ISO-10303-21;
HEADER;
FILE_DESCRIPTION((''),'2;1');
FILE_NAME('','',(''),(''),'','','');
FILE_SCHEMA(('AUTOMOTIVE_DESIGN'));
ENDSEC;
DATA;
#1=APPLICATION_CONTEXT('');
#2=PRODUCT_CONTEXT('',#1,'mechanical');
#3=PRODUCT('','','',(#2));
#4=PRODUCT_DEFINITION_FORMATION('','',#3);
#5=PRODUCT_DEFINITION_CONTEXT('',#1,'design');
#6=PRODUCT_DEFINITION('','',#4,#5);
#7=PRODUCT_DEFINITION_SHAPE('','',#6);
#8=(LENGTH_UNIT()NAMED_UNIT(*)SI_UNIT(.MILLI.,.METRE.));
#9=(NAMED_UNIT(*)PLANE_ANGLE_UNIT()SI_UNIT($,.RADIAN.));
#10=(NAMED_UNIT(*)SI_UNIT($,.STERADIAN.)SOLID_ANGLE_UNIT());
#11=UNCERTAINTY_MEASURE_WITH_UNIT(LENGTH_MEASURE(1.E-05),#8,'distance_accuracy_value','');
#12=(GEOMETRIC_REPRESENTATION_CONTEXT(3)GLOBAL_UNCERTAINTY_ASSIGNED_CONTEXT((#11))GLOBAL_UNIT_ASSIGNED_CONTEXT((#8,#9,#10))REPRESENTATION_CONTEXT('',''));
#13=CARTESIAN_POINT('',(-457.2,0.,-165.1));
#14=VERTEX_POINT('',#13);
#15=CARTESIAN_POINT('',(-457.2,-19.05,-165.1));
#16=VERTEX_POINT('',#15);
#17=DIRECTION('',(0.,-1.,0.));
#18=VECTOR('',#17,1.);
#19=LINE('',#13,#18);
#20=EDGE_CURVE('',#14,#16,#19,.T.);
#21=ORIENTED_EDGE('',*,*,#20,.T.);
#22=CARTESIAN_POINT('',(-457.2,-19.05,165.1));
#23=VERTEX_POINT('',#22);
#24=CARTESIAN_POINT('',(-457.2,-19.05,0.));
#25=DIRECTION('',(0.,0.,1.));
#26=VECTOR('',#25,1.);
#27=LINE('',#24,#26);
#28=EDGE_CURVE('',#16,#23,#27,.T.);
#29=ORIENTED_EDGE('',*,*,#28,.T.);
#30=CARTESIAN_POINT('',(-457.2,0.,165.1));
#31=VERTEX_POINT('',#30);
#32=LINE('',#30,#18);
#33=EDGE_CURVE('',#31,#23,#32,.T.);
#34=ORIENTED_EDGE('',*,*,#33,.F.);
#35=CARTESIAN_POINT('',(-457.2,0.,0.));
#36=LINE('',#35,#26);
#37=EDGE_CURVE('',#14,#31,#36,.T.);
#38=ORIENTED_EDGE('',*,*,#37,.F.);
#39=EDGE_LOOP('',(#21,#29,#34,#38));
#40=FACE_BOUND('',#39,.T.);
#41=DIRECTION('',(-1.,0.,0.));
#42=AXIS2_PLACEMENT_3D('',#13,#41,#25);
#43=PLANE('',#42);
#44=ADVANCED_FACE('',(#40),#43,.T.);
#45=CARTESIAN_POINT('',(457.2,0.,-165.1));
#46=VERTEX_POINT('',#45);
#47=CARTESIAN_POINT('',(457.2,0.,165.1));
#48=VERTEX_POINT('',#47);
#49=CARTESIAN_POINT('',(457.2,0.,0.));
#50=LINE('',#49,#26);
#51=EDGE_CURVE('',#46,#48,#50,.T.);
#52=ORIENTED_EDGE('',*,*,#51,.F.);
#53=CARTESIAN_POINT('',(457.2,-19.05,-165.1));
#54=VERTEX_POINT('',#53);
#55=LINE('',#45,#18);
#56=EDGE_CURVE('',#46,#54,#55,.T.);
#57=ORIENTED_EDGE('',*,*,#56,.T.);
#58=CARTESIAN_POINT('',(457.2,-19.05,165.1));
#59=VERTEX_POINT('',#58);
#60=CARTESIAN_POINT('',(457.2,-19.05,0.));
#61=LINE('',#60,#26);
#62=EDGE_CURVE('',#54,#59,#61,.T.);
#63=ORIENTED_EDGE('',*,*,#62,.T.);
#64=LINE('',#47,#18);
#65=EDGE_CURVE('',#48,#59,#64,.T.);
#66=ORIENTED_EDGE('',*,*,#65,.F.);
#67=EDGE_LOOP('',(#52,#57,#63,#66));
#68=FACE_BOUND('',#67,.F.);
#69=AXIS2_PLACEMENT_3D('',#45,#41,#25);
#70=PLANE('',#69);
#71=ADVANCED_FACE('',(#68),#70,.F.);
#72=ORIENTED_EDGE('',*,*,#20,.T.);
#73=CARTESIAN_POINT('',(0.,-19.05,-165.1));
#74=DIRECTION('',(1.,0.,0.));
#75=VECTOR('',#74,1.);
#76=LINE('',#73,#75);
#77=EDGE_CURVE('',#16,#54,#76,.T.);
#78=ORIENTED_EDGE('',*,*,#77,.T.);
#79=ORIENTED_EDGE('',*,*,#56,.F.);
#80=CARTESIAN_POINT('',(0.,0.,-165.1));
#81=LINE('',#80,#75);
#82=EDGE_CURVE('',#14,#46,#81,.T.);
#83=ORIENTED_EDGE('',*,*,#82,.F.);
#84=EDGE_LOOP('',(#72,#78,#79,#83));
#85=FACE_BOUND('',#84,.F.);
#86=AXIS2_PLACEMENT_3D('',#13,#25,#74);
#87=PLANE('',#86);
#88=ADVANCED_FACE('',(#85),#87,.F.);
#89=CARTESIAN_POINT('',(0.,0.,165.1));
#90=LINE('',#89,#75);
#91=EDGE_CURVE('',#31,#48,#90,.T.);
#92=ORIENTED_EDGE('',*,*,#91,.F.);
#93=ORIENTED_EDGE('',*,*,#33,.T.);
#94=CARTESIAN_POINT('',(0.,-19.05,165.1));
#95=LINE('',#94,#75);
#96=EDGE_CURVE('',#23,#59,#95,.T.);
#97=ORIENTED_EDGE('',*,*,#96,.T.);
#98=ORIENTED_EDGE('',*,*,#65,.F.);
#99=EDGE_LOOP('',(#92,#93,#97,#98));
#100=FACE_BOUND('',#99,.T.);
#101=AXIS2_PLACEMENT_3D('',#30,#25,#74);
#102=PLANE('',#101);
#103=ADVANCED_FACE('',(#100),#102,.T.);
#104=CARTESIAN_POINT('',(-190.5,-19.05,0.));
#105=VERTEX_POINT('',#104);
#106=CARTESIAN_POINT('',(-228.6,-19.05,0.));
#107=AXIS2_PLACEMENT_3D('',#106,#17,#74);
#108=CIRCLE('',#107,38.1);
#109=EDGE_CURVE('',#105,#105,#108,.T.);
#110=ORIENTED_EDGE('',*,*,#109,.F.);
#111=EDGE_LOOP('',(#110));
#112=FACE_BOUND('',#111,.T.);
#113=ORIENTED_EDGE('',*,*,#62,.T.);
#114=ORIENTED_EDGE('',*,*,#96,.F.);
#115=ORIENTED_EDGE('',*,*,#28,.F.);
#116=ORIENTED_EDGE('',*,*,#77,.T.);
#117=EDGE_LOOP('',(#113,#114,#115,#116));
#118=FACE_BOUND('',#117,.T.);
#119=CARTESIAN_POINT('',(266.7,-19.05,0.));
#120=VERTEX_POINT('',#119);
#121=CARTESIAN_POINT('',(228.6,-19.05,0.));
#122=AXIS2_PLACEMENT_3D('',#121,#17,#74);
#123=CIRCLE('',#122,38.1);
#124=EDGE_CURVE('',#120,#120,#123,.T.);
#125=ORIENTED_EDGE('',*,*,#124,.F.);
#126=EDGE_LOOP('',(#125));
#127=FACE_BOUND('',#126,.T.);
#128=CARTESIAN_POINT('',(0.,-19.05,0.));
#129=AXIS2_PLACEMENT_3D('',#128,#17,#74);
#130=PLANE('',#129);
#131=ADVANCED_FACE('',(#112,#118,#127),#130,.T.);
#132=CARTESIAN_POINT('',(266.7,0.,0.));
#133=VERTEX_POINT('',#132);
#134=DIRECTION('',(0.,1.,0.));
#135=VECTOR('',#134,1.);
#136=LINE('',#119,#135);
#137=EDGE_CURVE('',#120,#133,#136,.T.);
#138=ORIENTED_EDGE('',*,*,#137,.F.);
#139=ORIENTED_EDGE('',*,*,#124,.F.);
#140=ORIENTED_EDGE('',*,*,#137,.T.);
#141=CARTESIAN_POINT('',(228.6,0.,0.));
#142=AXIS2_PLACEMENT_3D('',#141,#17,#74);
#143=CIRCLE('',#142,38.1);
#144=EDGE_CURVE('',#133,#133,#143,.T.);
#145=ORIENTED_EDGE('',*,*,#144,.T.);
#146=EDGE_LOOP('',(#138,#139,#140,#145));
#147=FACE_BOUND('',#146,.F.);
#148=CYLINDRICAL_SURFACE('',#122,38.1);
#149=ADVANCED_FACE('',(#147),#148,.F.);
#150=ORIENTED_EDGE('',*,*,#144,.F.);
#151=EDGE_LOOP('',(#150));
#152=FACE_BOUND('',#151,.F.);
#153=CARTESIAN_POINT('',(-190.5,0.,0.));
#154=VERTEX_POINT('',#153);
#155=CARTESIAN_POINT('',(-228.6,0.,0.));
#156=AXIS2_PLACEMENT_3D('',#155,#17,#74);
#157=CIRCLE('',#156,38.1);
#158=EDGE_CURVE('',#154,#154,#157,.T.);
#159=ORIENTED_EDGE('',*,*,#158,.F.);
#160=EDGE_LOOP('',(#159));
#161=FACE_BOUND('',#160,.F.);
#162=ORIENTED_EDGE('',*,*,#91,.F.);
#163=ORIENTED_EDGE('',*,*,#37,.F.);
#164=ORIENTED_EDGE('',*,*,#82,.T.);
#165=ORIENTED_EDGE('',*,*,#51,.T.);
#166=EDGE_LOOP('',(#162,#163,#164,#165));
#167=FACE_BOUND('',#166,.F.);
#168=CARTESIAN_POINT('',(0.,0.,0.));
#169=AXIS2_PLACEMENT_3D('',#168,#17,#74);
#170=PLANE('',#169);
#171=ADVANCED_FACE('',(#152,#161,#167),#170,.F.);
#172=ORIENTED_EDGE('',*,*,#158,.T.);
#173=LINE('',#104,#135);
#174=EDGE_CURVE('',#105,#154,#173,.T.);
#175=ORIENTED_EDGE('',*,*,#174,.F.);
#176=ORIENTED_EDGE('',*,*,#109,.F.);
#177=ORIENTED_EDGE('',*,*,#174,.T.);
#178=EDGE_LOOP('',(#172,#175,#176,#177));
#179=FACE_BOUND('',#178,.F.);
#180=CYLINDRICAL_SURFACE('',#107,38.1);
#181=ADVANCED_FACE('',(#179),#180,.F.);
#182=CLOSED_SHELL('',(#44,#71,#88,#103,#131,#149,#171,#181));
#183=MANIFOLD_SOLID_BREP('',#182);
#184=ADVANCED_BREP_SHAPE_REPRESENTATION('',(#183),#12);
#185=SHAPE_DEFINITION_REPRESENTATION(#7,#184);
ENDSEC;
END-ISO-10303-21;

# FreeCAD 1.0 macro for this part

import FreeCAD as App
import Part
import Sketcher

V = App.Vector
Q = App.Units.Quantity

doc = App.newDocument("Part")
body = doc.addObject("PartDesign::Body", "Body")

# Sketch on XZ plane
sketch1 = body.newObject("Sketcher::SketchObject", "Sketch")
sketch1.AttachmentSupport = (doc.getObject("XZ_Plane"), [""])
sketch1.MapMode = "FlatFace"
sketch1.addGeometry([
    Part.LineSegment(V(-457, 165, 0), V(-457, -165, 0)),
    Part.LineSegment(V(-457, -165, 0), V(457, -165, 0)),
    Part.LineSegment(V(457, -165, 0), V(457, 165, 0)),
    Part.LineSegment(V(457, 165, 0), V(-457, 165, 0)),
], False)
sketch1.addConstraint([
    Sketcher.Constraint("Coincident", 0, 2, 1, 1),
    Sketcher.Constraint("Coincident", 1, 2, 2, 1),
    Sketcher.Constraint("Coincident", 2, 2, 3, 1),
    Sketcher.Constraint("Coincident", 3, 2, 0, 1),
    Sketcher.Constraint("Vertical", 0),
    Sketcher.Constraint("Horizontal", 1),
    Sketcher.Constraint("Vertical", 2),
    Sketcher.Constraint("Horizontal", 3),
    Sketcher.Constraint("Symmetric", 0, 2, 2, 2, -1, 1),
    Sketcher.Constraint("DistanceX", 1, 1, 1, 2, Q("36 in")),
    Sketcher.Constraint("DistanceY", 0, 2, 0, 1, Q("13 in")),
])
pad1 = body.newObject("PartDesign::Pad", "Pad")
pad1.Profile = sketch1
pad1.Length = Q("0.75 in")

# Sketch on XZ plane
sketch2 = body.newObject("Sketcher::SketchObject", "Sketch001")
sketch2.AttachmentSupport = (doc.getObject("XZ_Plane"), [""])
sketch2.MapMode = "FlatFace"
sketch2.AttachmentOffset = App.Placement(V(0, 0, 0.75 * 25.4), App.Rotation())
sketch2.addGeometry([
    Part.Circle(V(-229, 0, 0), V(0, 0, 1), 38),
    Part.Circle(V(229, 0, 0), V(0, 0, 1), 38),
], False)
sketch2.addConstraint([
    Sketcher.Constraint("Equal", 0, 1),
    Sketcher.Constraint("Symmetric", 0, 3, 1, 3, -1, 1),
    Sketcher.Constraint("PointOnObject", 0, 3, -1),
    Sketcher.Constraint("Diameter", 0, Q("3 in")),
    Sketcher.Constraint("DistanceX", 0, 3, -1, 1, Q("9 in")),
])
pocket1 = body.newObject("PartDesign::Pocket", "Pocket")
pocket1.Profile = sketch2
pocket1.Type = "ThroughAll"

doc.recompute()
